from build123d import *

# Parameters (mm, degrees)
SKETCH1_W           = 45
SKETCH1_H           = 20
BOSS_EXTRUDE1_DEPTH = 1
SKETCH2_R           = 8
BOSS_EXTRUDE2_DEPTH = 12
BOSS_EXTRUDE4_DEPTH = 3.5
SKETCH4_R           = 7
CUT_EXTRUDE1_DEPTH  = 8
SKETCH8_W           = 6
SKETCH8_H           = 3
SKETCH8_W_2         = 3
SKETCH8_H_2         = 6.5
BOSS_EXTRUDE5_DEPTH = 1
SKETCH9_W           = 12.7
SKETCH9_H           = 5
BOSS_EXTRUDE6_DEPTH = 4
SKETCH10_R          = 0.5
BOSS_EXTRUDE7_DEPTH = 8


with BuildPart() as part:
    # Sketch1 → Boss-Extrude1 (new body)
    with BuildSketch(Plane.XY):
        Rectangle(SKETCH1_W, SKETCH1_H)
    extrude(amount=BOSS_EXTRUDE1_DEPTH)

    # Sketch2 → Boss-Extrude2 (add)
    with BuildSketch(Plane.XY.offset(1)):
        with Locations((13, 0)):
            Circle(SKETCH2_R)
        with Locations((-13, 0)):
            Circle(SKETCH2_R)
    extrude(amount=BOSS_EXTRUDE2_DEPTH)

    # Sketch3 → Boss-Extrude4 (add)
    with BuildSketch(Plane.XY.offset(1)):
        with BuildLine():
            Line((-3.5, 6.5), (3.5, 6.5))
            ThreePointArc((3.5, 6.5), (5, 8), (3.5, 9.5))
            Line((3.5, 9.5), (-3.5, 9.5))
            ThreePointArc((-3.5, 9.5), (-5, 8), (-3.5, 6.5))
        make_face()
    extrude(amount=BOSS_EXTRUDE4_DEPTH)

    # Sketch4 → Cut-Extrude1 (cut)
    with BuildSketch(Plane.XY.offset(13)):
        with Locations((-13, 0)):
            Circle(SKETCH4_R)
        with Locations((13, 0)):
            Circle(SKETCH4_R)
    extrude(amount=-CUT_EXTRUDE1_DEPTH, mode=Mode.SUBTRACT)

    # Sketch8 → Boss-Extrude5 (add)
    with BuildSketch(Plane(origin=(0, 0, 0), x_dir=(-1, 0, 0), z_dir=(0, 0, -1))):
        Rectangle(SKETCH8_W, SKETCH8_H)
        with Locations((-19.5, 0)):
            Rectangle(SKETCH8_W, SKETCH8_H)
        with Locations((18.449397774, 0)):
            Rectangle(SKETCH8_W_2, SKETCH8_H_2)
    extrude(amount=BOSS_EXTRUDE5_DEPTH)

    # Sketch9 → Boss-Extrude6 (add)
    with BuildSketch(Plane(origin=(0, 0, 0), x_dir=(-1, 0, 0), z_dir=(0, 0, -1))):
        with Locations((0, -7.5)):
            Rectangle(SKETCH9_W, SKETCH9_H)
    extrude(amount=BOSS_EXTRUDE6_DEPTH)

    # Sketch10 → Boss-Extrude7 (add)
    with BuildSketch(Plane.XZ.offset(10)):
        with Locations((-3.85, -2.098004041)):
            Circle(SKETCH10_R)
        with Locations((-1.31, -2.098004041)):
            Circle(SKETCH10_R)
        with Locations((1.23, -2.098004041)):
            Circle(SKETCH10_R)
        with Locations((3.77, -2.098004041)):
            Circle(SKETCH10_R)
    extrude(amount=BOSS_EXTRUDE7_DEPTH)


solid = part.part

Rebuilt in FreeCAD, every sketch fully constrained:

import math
import FreeCAD as App
import Part
import Sketcher
from FreeCAD import Vector
Q = App.Units.Quantity


def add_polygon(sketch, points):
    """Adds a closed chain of lines whose ends are joined by coincident constraints."""
    first, n = sketch.GeometryCount, len(points)
    for a, b in zip(points, points[1:] + points[:1]):
        sketch.addGeometry(Part.LineSegment(App.Vector(*a, 0), App.Vector(*b, 0)), False)
    for i in range(n):
        sketch.addConstraint(Sketcher.Constraint("Coincident", first + i, 2, first + (i + 1) % n, 1))

doc = App.newDocument("Part")
body = doc.addObject("PartDesign::Body", "Body")

# Sketch on XY plane
sketch1 = body.newObject("Sketcher::SketchObject", "Sketch")
sketch1.AttachmentSupport = (doc.getObject("XY_Plane"), [""])
sketch1.MapMode = "FlatFace"
add_polygon(sketch1, [(-22, 10), (-22, -10), (22, -10), (22, 10)])  # lines 0-3
sketch1.addConstraint(Sketcher.Constraint("Vertical", 0))
sketch1.addConstraint(Sketcher.Constraint("Horizontal", 1))
sketch1.addConstraint(Sketcher.Constraint("Vertical", 2))
sketch1.addConstraint(Sketcher.Constraint("Horizontal", 3))
sketch1.addConstraint(Sketcher.Constraint("Symmetric", 0, 2, 2, 2, -1, 1))
sketch1.addConstraint(Sketcher.Constraint("DistanceX", 1, 1, 1, 2, Q("45 mm")))
sketch1.addConstraint(Sketcher.Constraint("DistanceY", 0, 2, 0, 1, Q("20 mm")))
pad1 = body.newObject("PartDesign::Pad", "Pad")
pad1.Profile = sketch1
pad1.Length = 1

# Sketch on XY plane
sketch2 = body.newObject("Sketcher::SketchObject", "Sketch001")
sketch2.AttachmentSupport = (doc.getObject("XY_Plane"), [""])
sketch2.MapMode = "FlatFace"
sketch2.AttachmentOffset = App.Placement(Vector(0, 0, 1), App.Rotation())
sketch2.addGeometry(Part.Circle(Vector(13, 0, 0), Vector(0, 0, 1), 8), False)
sketch2.addGeometry(Part.Circle(Vector(-13, 0, 0), Vector(0, 0, 1), 8), False)
sketch2.addConstraint(Sketcher.Constraint("Equal", 0, 1))
sketch2.addConstraint(Sketcher.Constraint("Symmetric", 0, 3, 1, 3, -1, 1))
sketch2.addConstraint(Sketcher.Constraint("PointOnObject", 0, 3, -1))
sketch2.addConstraint(Sketcher.Constraint("Diameter", 0, Q("16 mm")))
sketch2.addConstraint(Sketcher.Constraint("DistanceX", -1, 1, 0, 3, Q("13 mm")))
pad2 = body.newObject("PartDesign::Pad", "Pad001")
pad2.Profile = sketch2
pad2.Length = 12

# Sketch on XY plane
sketch3 = body.newObject("Sketcher::SketchObject", "Sketch002")
sketch3.AttachmentSupport = (doc.getObject("XY_Plane"), [""])
sketch3.MapMode = "FlatFace"
sketch3.AttachmentOffset = App.Placement(Vector(0, 0, 1), App.Rotation())
sketch3.addGeometry(Part.LineSegment(Vector(-3.5, 6.5, 0), Vector(3.5, 6.5, 0)), False)
sketch3.addGeometry(Part.ArcOfCircle(Part.Circle(Vector(3.5, 8, 0), Vector(0, 0, 1), 1.5), math.radians(-90), math.radians(90)), False)
sketch3.addGeometry(Part.LineSegment(Vector(3.5, 9.5, 0), Vector(-3.5, 9.5, 0)), False)
sketch3.addGeometry(Part.ArcOfCircle(Part.Circle(Vector(-3.5, 8, 0), Vector(0, 0, 1), 1.5), math.radians(90), math.radians(270)), False)
sketch3.addConstraint(Sketcher.Constraint("Tangent", 0, 2, 1, 1))
sketch3.addConstraint(Sketcher.Constraint("Tangent", 1, 2, 2, 1))
sketch3.addConstraint(Sketcher.Constraint("Tangent", 2, 2, 3, 1))
sketch3.addConstraint(Sketcher.Constraint("Tangent", 3, 2, 0, 1))
sketch3.addConstraint(Sketcher.Constraint("Horizontal", 0))
sketch3.addConstraint(Sketcher.Constraint("Horizontal", 2))
sketch3.addConstraint(Sketcher.Constraint("Radius", 1, Q("1.5 mm")))
sketch3.addConstraint(Sketcher.Constraint("DistanceX", 0, 1, 0, 2, Q("7 mm")))
sketch3.addConstraint(Sketcher.Constraint("DistanceY", -1, 1, 1, 3, Q("8 mm")))
sketch3.addConstraint(Sketcher.Constraint("DistanceX", -1, 1, 1, 3, Q("3.5 mm")))
pad3 = body.newObject("PartDesign::Pad", "Pad002")
pad3.Profile = sketch3
pad3.Length = 3.5

# Sketch on XY plane
sketch4 = body.newObject("Sketcher::SketchObject", "Sketch003")
sketch4.AttachmentSupport = (doc.getObject("XY_Plane"), [""])
sketch4.MapMode = "FlatFace"
sketch4.AttachmentOffset = App.Placement(Vector(0, 0, 13), App.Rotation())
sketch4.addGeometry(Part.Circle(Vector(-13, 0, 0), Vector(0, 0, 1), 7), False)
sketch4.addGeometry(Part.Circle(Vector(13, 0, 0), Vector(0, 0, 1), 7), False)
sketch4.addConstraint(Sketcher.Constraint("Equal", 0, 1))
sketch4.addConstraint(Sketcher.Constraint("Symmetric", 0, 3, 1, 3, -1, 1))
sketch4.addConstraint(Sketcher.Constraint("PointOnObject", 0, 3, -1))
sketch4.addConstraint(Sketcher.Constraint("Diameter", 0, Q("14 mm")))
sketch4.addConstraint(Sketcher.Constraint("DistanceX", 0, 3, -1, 1, Q("13 mm")))
pocket1 = body.newObject("PartDesign::Pocket", "Pocket")
pocket1.Profile = sketch4
pocket1.Length = 8

# Sketch on XY plane
sketch5 = body.newObject("Sketcher::SketchObject", "Sketch004")
sketch5.AttachmentSupport = (doc.getObject("XY_Plane"), [""])
sketch5.MapMode = "FlatFace"
add_polygon(sketch5, [(3, 1.5), (3, -1.5), (-3, -1.5), (-3, 1.5)])  # lines 0-3
add_polygon(sketch5, [(22.5, 1.5), (22.5, -1.5), (16.5, -1.5), (16.5, 1.5)])  # lines 4-7
add_polygon(sketch5, [(-16.9, 3.2), (-16.9, -3.2), (-19.9, -3.2), (-19.9, 3.2)])  # lines 8-11
sketch5.addConstraint(Sketcher.Constraint("Vertical", 0))
sketch5.addConstraint(Sketcher.Constraint("Horizontal", 1))
sketch5.addConstraint(Sketcher.Constraint("Vertical", 2))
sketch5.addConstraint(Sketcher.Constraint("Horizontal", 3))
sketch5.addConstraint(Sketcher.Constraint("Vertical", 4))
sketch5.addConstraint(Sketcher.Constraint("Horizontal", 5))
sketch5.addConstraint(Sketcher.Constraint("Vertical", 6))
sketch5.addConstraint(Sketcher.Constraint("Horizontal", 7))
sketch5.addConstraint(Sketcher.Constraint("Vertical", 8))
sketch5.addConstraint(Sketcher.Constraint("Horizontal", 9))
sketch5.addConstraint(Sketcher.Constraint("Vertical", 10))
sketch5.addConstraint(Sketcher.Constraint("Horizontal", 11))
sketch5.addConstraint(Sketcher.Constraint("Symmetric", 0, 2, 2, 2, -1, 1))
sketch5.addConstraint(Sketcher.Constraint("Horizontal", 1, 2, 4, 2))
sketch5.addConstraint(Sketcher.Constraint("Horizontal", 3, 2, 6, 2))
sketch5.addConstraint(Sketcher.Constraint("Equal", 3, 5))
sketch5.addConstraint(Sketcher.Constraint("Equal", 11, 0))
sketch5.addConstraint(Sketcher.Constraint("DistanceX", 1, 2, 1, 1, Q("6 mm")))
sketch5.addConstraint(Sketcher.Constraint("DistanceX", 9, 2, 9, 1, Q("3 mm")))
sketch5.addConstraint(Sketcher.Constraint("DistanceY", 8, 2, 8, 1, Q("6.5 mm")))
sketch5.addConstraint(Sketcher.Constraint("DistanceX", -1, 1, 4, 2, Q("22.5 mm")))
sketch5.addConstraint(Sketcher.Constraint("DistanceY", 8, 2, -1, 1, Q("3.25 mm")))
sketch5.addConstraint(Sketcher.Constraint("DistanceX", 8, 2, -1, 1, Q("16.949398 mm")))
pad4 = body.newObject("PartDesign::Pad", "Pad003")
pad4.Profile = sketch5
pad4.Length = 1
pad4.Reversed = True

# Sketch on XY plane
sketch6 = body.newObject("Sketcher::SketchObject", "Sketch005")
sketch6.AttachmentSupport = (doc.getObject("XY_Plane"), [""])
sketch6.MapMode = "FlatFace"
add_polygon(sketch6, [(6, -5), (6, -10), (-6, -10), (-6, -5)])  # lines 0-3
sketch6.addConstraint(Sketcher.Constraint("Vertical", 0))
sketch6.addConstraint(Sketcher.Constraint("Horizontal", 1))
sketch6.addConstraint(Sketcher.Constraint("Vertical", 2))
sketch6.addConstraint(Sketcher.Constraint("Horizontal", 3))
sketch6.addConstraint(Sketcher.Constraint("DistanceY", 0, 2, 0, 1, Q("5 mm")))
sketch6.addConstraint(Sketcher.Constraint("DistanceX", 1, 2, 1, 1, Q("12.7 mm")))
sketch6.addConstraint(Sketcher.Constraint("DistanceY", 0, 2, -1, 1, Q("10 mm")))
sketch6.addConstraint(Sketcher.Constraint("DistanceX", -1, 1, 0, 2, Q("6.35 mm")))
pad5 = body.newObject("PartDesign::Pad", "Pad004")
pad5.Profile = sketch6
pad5.Length = 4
pad5.Reversed = True

# Sketch on XZ plane
sketch7 = body.newObject("Sketcher::SketchObject", "Sketch006")
sketch7.AttachmentSupport = (doc.getObject("XZ_Plane"), [""])
sketch7.MapMode = "FlatFace"
sketch7.AttachmentOffset = App.Placement(Vector(0, 0, 10), App.Rotation())
sketch7.addGeometry(Part.Circle(Vector(-3.9, -2.1, 0), Vector(0, 0, 1), 0.5), False)
sketch7.addGeometry(Part.Circle(Vector(-1.3, -2.1, 0), Vector(0, 0, 1), 0.5), False)
sketch7.addGeometry(Part.Circle(Vector(1.2, -2.1, 0), Vector(0, 0, 1), 0.5), False)
sketch7.addGeometry(Part.Circle(Vector(3.8, -2.1, 0), Vector(0, 0, 1), 0.5), False)
sketch7.addConstraint(Sketcher.Constraint("Equal", 0, 1))
sketch7.addConstraint(Sketcher.Constraint("Equal", 1, 2))
sketch7.addConstraint(Sketcher.Constraint("Equal", 2, 3))
sketch7.addConstraint(Sketcher.Constraint("Horizontal", 0, 3, 1, 3))
sketch7.addConstraint(Sketcher.Constraint("Horizontal", 1, 3, 2, 3))
sketch7.addConstraint(Sketcher.Constraint("Horizontal", 2, 3, 3, 3))
sketch7.addConstraint(Sketcher.Constraint("Diameter", 0, Q("1 mm")))
sketch7.addConstraint(Sketcher.Constraint("DistanceX", 0, 3, -1, 1, Q("3.85 mm")))
sketch7.addConstraint(Sketcher.Constraint("DistanceX", 1, 3, -1, 1, Q("1.31 mm")))
sketch7.addConstraint(Sketcher.Constraint("DistanceX", -1, 1, 2, 3, Q("1.23 mm")))
sketch7.addConstraint(Sketcher.Constraint("DistanceX", -1, 1, 3, 3, Q("3.77 mm")))
sketch7.addConstraint(Sketcher.Constraint("DistanceY", 0, 3, -1, 1, Q("2.098004 mm")))
pad6 = body.newObject("PartDesign::Pad", "Pad005")
pad6.Profile = sketch7
pad6.Length = 8

doc.recompute()
